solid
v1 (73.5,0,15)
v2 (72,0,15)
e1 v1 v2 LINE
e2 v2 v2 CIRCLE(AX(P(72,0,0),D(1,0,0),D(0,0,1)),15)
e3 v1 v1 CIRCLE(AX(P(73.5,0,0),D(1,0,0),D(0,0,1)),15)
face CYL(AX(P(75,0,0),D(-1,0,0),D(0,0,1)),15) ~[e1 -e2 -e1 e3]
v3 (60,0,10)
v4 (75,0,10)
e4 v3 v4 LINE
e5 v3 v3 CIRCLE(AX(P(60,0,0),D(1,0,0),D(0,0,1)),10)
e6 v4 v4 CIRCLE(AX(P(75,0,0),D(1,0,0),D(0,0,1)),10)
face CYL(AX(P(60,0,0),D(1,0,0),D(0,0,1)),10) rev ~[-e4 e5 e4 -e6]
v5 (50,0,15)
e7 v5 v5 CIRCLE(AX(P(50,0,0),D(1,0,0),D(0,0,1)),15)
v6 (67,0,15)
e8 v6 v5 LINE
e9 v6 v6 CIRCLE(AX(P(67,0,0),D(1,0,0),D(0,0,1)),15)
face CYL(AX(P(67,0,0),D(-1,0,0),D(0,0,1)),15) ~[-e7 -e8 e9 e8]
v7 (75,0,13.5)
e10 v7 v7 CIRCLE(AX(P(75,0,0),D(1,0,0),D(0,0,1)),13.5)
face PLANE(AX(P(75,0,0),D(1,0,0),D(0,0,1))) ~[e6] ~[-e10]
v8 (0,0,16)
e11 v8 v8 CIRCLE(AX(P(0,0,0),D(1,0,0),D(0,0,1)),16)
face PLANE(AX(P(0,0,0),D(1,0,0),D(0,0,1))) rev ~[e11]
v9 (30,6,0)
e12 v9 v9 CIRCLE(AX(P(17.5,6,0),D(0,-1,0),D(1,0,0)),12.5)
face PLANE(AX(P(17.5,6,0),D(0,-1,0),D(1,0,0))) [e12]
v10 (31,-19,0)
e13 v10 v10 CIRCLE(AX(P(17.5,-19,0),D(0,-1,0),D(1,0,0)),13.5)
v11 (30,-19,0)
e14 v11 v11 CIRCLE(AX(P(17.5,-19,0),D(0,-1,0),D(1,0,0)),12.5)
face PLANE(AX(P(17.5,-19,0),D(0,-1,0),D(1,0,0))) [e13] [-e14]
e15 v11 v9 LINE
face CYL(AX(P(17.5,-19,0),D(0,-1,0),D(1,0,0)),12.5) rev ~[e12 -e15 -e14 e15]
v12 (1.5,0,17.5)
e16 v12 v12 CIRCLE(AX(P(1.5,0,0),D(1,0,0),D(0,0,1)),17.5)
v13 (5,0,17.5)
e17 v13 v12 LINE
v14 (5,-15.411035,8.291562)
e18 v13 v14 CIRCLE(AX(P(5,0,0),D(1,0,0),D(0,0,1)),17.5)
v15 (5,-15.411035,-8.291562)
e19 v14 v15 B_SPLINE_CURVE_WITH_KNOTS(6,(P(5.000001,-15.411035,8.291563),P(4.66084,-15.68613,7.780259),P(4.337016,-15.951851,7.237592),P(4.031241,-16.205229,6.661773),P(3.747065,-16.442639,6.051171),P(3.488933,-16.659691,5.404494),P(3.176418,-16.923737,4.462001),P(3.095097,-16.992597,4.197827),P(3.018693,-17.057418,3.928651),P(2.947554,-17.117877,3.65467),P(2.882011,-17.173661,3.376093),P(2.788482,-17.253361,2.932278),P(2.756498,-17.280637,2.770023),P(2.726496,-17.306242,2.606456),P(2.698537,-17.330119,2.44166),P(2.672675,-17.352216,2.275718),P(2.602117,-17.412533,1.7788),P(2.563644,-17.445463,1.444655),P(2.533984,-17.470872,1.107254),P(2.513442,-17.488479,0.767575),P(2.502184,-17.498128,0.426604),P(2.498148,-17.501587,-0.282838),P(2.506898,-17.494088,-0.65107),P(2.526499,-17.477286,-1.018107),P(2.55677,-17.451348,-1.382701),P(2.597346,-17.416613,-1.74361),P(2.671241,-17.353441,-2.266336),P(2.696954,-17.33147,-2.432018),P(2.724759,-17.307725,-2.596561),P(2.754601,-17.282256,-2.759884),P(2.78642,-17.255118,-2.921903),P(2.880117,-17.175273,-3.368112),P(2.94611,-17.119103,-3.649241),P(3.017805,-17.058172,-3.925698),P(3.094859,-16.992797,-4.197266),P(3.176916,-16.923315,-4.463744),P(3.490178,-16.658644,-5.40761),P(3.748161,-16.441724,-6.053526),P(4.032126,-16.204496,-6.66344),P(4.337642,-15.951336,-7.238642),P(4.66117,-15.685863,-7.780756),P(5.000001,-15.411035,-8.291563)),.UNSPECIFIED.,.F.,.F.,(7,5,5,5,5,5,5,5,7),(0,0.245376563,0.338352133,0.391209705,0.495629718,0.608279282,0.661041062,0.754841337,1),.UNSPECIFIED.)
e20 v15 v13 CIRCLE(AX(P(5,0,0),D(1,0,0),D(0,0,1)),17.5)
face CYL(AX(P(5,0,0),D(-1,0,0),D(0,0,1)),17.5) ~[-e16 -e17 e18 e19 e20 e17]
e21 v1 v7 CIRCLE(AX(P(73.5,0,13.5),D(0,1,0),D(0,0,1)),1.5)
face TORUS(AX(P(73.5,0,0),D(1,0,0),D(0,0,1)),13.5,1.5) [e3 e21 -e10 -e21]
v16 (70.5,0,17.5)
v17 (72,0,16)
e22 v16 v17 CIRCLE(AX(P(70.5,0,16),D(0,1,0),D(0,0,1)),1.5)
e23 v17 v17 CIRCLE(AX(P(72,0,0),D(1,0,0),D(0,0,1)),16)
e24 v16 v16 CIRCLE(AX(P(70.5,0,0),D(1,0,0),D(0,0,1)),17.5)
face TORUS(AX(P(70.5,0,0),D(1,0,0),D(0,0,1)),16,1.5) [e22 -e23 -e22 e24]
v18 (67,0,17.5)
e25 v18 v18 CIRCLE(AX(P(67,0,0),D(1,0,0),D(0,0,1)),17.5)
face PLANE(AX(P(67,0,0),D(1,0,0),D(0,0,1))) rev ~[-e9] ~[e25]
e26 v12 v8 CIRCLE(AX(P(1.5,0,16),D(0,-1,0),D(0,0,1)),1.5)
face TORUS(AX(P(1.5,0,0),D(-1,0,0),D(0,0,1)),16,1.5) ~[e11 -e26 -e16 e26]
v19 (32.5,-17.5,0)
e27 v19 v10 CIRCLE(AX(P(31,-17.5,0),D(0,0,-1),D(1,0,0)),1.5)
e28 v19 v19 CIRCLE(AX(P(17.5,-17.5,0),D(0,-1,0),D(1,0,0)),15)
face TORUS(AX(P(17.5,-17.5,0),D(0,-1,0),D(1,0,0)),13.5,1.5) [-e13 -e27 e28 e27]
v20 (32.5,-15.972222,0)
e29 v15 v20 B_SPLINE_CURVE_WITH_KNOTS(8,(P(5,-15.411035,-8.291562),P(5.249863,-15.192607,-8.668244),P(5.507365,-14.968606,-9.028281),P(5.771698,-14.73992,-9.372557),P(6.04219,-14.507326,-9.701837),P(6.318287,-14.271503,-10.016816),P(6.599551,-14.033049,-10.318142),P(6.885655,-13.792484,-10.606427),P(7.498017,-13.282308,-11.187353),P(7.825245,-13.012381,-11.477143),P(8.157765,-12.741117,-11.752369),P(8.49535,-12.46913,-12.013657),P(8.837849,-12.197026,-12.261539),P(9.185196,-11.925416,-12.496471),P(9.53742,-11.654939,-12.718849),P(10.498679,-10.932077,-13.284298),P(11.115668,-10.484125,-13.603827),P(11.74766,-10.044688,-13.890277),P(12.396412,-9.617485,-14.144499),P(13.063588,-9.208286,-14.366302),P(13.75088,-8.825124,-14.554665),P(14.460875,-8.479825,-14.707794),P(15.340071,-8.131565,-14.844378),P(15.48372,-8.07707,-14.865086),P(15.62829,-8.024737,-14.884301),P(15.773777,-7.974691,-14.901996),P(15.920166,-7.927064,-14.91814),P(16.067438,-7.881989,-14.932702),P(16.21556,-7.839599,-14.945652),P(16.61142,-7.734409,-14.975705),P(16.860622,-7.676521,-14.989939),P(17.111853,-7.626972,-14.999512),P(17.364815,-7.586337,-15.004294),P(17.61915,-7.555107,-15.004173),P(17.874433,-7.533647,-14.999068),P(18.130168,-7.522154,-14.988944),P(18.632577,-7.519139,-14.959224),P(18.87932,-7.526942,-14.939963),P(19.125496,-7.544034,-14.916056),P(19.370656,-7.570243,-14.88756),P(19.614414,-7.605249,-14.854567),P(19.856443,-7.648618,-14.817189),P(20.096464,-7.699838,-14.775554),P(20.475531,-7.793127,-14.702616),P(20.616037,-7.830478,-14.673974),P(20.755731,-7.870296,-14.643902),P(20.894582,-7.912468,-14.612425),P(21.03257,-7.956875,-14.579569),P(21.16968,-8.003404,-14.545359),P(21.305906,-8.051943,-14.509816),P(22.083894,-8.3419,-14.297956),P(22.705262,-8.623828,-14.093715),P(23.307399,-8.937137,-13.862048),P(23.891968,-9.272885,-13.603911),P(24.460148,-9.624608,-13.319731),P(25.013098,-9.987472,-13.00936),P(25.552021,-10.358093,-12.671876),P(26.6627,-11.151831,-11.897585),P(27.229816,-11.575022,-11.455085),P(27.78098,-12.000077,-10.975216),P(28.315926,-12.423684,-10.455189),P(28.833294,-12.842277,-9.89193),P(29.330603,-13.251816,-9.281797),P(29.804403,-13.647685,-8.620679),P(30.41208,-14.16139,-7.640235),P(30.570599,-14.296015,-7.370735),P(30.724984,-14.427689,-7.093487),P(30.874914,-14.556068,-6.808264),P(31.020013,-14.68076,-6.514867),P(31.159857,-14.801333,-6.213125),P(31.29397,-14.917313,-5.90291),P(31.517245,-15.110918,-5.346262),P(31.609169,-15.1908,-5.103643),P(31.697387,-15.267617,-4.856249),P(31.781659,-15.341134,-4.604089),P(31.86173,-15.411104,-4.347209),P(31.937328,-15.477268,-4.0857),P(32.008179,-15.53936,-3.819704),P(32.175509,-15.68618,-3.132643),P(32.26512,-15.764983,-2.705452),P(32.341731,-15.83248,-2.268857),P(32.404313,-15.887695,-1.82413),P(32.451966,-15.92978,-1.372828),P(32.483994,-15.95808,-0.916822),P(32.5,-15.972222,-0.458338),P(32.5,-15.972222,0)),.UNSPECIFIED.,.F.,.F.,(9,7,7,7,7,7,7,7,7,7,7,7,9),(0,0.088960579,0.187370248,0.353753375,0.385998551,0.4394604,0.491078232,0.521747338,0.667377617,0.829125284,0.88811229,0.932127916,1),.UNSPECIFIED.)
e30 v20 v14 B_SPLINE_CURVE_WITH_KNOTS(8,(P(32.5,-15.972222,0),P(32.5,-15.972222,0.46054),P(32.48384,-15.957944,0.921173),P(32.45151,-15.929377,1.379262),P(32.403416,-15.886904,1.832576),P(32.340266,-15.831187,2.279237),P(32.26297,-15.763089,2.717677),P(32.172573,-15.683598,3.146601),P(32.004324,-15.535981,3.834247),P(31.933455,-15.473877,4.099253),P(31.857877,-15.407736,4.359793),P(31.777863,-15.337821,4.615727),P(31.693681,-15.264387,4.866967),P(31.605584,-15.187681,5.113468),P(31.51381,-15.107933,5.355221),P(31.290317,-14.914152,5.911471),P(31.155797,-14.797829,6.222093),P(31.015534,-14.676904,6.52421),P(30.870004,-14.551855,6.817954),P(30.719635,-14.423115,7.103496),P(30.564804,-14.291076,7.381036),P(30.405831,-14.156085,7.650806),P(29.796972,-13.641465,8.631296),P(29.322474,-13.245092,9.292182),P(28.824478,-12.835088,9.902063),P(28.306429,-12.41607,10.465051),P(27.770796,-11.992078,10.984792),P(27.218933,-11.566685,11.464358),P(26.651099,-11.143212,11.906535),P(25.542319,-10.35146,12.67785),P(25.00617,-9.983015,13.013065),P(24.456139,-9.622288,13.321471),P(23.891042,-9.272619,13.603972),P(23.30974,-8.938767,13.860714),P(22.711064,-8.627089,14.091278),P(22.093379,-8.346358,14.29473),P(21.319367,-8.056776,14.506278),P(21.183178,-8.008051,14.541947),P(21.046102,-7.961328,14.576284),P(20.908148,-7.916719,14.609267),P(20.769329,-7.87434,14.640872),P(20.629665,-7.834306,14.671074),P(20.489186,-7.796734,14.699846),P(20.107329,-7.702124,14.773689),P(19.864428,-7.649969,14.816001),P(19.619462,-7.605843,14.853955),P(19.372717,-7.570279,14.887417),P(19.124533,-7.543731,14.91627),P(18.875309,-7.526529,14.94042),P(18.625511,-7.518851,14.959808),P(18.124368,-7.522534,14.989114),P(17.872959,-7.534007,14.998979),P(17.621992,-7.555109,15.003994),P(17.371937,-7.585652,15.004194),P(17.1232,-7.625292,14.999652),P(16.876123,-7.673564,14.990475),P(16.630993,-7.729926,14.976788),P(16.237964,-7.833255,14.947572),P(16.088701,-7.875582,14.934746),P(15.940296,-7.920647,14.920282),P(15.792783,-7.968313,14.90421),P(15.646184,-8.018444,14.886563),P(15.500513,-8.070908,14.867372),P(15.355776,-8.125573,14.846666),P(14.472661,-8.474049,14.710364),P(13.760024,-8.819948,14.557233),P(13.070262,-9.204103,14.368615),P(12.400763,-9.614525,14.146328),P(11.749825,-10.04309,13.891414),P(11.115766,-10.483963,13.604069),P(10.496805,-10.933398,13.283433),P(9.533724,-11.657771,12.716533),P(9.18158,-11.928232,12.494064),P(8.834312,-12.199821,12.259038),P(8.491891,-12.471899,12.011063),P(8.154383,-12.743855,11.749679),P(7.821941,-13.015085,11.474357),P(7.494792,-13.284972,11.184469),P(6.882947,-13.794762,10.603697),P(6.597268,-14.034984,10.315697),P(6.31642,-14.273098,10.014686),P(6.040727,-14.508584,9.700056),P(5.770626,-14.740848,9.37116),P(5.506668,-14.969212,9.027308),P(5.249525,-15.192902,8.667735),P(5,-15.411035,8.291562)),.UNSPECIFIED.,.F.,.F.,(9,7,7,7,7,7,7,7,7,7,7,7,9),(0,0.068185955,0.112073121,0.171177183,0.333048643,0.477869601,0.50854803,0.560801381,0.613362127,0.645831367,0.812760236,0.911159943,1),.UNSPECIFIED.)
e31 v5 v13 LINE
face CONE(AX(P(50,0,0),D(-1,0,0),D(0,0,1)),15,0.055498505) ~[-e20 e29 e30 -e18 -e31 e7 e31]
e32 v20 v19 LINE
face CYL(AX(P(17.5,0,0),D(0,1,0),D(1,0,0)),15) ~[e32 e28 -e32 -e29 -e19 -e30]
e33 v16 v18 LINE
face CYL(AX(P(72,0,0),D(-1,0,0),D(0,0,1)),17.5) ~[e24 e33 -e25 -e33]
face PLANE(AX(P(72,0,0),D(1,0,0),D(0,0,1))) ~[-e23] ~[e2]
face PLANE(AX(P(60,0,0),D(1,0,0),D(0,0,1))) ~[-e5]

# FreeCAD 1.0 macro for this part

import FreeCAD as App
import Part
import Sketcher
from FreeCAD import Vector
Q = App.Units.Quantity


def edges_at(feature, points):
    """Names of the edges that pass closest to the given points."""
    edges = feature.Shape.Edges
    near = lambda p: min(range(len(edges)), key=lambda i: edges[i].distToShape(Part.Vertex(*p))[0])
    return sorted({f"Edge{near(p) + 1}" for p in points})


def add_polygon(sketch, points):
    """Adds a closed chain of lines whose ends are joined by coincident constraints."""
    first, n = sketch.GeometryCount, len(points)
    for a, b in zip(points, points[1:] + points[:1]):
        sketch.addGeometry(Part.LineSegment(App.Vector(*a, 0), App.Vector(*b, 0)), False)
    for i in range(n):
        sketch.addConstraint(Sketcher.Constraint("Coincident", first + i, 2, first + (i + 1) % n, 1))

doc = App.newDocument("Part")
body = doc.addObject("PartDesign::Body", "Body")

# Sketch on XZ plane
sketch1 = body.newObject("Sketcher::SketchObject", "Sketch")
sketch1.AttachmentSupport = (doc.getObject("XZ_Plane"), [""])
sketch1.MapMode = "FlatFace"
add_polygon(sketch1, [(0, 17.5), (0, 0), (60, 0), (60, 10), (75, 10), (75, 15), (72, 15), (72, 17.5), (67, 17.5), (67, 15), (50, 15), (5, 17.5)])  # lines 0-11
sketch1.addConstraint([
    Sketcher.Constraint("Vertical", 0),
    Sketcher.Constraint("Horizontal", 1),
    Sketcher.Constraint("Vertical", 2),
    Sketcher.Constraint("Horizontal", 3),
    Sketcher.Constraint("Vertical", 4),
    Sketcher.Constraint("Horizontal", 5),
    Sketcher.Constraint("Vertical", 6),
    Sketcher.Constraint("Horizontal", 7),
    Sketcher.Constraint("Vertical", 8),
    Sketcher.Constraint("Horizontal", 9),
    Sketcher.Constraint("Horizontal", 11),
    Sketcher.Constraint("Coincident", 0, 2, -1, 1),
    Sketcher.Constraint("Horizontal", 5, 2, 8, 2),
    Sketcher.Constraint("Horizontal", 7, 2, 10, 2),
    Sketcher.Constraint("Equal", 7, 11),
    Sketcher.Constraint("Equal", 11, 4),
    Sketcher.Constraint("DistanceX", 1, 1, 1, 2, Q("60 mm")),
    Sketcher.Constraint("DistanceX", 3, 1, 3, 2, Q("15 mm")),
    Sketcher.Constraint("DistanceX", 5, 2, 5, 1, Q("3 mm")),
    Sketcher.Constraint("DistanceX", 7, 2, 7, 1, Q("5 mm")),
    Sketcher.Constraint("DistanceX", 9, 2, 9, 1, Q("17 mm")),
    Sketcher.Constraint("DistanceY", 2, 1, 2, 2, Q("10 mm")),
    Sketcher.Constraint("DistanceY", 0, 2, 0, 1, Q("17.5 mm")),
])
revolution = body.newObject("PartDesign::Revolution", "Revolution")
revolution.Profile = sketch1
revolution.ReferenceAxis = (sketch1, ["H_Axis"])
revolution.Angle = 360

# Sketch on XZ plane
sketch2 = body.newObject("Sketcher::SketchObject", "Sketch001")
sketch2.AttachmentSupport = (doc.getObject("XZ_Plane"), [""])
sketch2.MapMode = "FlatFace"
sketch2.addGeometry(Part.Circle(Vector(18, 0, 0), Vector(0, 0, 1), 15), False)
sketch2.addConstraint([
    Sketcher.Constraint("PointOnObject", 0, 3, -1),
    Sketcher.Constraint("Diameter", 0, Q("30 mm")),
    Sketcher.Constraint("DistanceX", -1, 1, 0, 3, Q("17.5 mm")),
])
pad1 = body.newObject("PartDesign::Pad", "Pad")
pad1.Profile = sketch2
pad1.Length = 19

# Sketch on XZ plane
sketch3 = body.newObject("Sketcher::SketchObject", "Sketch002")
sketch3.AttachmentSupport = (doc.getObject("XZ_Plane"), [""])
sketch3.MapMode = "FlatFace"
sketch3.AttachmentOffset = App.Placement(Vector(0, 0, 19), App.Rotation())
sketch3.addGeometry(Part.Circle(Vector(18, 0, 0), Vector(0, 0, 1), 12), False)
sketch3.addConstraint([
    Sketcher.Constraint("PointOnObject", 0, 3, -1),
    Sketcher.Constraint("Diameter", 0, Q("25 mm")),
    Sketcher.Constraint("DistanceX", -1, 1, 0, 3, Q("17.5 mm")),
])
pocket1 = body.newObject("PartDesign::Pocket", "Pocket")
pocket1.Profile = sketch3
pocket1.Length = 25
doc.recompute()

fillet = body.newObject("PartDesign::Fillet", "Fillet")
fillet.Base = (pocket1, edges_at(pocket1, [(72, 0, -17.5), (75, 0, -15), (0, 0, -17.5)]))
fillet.Radius = 1.5
doc.recompute()

fillet2 = body.newObject("PartDesign::Fillet", "Fillet001")
fillet2.Base = (fillet, edges_at(fillet, [(2.5, -19, 0)]))
fillet2.Radius = 1.5

doc.recompute()
